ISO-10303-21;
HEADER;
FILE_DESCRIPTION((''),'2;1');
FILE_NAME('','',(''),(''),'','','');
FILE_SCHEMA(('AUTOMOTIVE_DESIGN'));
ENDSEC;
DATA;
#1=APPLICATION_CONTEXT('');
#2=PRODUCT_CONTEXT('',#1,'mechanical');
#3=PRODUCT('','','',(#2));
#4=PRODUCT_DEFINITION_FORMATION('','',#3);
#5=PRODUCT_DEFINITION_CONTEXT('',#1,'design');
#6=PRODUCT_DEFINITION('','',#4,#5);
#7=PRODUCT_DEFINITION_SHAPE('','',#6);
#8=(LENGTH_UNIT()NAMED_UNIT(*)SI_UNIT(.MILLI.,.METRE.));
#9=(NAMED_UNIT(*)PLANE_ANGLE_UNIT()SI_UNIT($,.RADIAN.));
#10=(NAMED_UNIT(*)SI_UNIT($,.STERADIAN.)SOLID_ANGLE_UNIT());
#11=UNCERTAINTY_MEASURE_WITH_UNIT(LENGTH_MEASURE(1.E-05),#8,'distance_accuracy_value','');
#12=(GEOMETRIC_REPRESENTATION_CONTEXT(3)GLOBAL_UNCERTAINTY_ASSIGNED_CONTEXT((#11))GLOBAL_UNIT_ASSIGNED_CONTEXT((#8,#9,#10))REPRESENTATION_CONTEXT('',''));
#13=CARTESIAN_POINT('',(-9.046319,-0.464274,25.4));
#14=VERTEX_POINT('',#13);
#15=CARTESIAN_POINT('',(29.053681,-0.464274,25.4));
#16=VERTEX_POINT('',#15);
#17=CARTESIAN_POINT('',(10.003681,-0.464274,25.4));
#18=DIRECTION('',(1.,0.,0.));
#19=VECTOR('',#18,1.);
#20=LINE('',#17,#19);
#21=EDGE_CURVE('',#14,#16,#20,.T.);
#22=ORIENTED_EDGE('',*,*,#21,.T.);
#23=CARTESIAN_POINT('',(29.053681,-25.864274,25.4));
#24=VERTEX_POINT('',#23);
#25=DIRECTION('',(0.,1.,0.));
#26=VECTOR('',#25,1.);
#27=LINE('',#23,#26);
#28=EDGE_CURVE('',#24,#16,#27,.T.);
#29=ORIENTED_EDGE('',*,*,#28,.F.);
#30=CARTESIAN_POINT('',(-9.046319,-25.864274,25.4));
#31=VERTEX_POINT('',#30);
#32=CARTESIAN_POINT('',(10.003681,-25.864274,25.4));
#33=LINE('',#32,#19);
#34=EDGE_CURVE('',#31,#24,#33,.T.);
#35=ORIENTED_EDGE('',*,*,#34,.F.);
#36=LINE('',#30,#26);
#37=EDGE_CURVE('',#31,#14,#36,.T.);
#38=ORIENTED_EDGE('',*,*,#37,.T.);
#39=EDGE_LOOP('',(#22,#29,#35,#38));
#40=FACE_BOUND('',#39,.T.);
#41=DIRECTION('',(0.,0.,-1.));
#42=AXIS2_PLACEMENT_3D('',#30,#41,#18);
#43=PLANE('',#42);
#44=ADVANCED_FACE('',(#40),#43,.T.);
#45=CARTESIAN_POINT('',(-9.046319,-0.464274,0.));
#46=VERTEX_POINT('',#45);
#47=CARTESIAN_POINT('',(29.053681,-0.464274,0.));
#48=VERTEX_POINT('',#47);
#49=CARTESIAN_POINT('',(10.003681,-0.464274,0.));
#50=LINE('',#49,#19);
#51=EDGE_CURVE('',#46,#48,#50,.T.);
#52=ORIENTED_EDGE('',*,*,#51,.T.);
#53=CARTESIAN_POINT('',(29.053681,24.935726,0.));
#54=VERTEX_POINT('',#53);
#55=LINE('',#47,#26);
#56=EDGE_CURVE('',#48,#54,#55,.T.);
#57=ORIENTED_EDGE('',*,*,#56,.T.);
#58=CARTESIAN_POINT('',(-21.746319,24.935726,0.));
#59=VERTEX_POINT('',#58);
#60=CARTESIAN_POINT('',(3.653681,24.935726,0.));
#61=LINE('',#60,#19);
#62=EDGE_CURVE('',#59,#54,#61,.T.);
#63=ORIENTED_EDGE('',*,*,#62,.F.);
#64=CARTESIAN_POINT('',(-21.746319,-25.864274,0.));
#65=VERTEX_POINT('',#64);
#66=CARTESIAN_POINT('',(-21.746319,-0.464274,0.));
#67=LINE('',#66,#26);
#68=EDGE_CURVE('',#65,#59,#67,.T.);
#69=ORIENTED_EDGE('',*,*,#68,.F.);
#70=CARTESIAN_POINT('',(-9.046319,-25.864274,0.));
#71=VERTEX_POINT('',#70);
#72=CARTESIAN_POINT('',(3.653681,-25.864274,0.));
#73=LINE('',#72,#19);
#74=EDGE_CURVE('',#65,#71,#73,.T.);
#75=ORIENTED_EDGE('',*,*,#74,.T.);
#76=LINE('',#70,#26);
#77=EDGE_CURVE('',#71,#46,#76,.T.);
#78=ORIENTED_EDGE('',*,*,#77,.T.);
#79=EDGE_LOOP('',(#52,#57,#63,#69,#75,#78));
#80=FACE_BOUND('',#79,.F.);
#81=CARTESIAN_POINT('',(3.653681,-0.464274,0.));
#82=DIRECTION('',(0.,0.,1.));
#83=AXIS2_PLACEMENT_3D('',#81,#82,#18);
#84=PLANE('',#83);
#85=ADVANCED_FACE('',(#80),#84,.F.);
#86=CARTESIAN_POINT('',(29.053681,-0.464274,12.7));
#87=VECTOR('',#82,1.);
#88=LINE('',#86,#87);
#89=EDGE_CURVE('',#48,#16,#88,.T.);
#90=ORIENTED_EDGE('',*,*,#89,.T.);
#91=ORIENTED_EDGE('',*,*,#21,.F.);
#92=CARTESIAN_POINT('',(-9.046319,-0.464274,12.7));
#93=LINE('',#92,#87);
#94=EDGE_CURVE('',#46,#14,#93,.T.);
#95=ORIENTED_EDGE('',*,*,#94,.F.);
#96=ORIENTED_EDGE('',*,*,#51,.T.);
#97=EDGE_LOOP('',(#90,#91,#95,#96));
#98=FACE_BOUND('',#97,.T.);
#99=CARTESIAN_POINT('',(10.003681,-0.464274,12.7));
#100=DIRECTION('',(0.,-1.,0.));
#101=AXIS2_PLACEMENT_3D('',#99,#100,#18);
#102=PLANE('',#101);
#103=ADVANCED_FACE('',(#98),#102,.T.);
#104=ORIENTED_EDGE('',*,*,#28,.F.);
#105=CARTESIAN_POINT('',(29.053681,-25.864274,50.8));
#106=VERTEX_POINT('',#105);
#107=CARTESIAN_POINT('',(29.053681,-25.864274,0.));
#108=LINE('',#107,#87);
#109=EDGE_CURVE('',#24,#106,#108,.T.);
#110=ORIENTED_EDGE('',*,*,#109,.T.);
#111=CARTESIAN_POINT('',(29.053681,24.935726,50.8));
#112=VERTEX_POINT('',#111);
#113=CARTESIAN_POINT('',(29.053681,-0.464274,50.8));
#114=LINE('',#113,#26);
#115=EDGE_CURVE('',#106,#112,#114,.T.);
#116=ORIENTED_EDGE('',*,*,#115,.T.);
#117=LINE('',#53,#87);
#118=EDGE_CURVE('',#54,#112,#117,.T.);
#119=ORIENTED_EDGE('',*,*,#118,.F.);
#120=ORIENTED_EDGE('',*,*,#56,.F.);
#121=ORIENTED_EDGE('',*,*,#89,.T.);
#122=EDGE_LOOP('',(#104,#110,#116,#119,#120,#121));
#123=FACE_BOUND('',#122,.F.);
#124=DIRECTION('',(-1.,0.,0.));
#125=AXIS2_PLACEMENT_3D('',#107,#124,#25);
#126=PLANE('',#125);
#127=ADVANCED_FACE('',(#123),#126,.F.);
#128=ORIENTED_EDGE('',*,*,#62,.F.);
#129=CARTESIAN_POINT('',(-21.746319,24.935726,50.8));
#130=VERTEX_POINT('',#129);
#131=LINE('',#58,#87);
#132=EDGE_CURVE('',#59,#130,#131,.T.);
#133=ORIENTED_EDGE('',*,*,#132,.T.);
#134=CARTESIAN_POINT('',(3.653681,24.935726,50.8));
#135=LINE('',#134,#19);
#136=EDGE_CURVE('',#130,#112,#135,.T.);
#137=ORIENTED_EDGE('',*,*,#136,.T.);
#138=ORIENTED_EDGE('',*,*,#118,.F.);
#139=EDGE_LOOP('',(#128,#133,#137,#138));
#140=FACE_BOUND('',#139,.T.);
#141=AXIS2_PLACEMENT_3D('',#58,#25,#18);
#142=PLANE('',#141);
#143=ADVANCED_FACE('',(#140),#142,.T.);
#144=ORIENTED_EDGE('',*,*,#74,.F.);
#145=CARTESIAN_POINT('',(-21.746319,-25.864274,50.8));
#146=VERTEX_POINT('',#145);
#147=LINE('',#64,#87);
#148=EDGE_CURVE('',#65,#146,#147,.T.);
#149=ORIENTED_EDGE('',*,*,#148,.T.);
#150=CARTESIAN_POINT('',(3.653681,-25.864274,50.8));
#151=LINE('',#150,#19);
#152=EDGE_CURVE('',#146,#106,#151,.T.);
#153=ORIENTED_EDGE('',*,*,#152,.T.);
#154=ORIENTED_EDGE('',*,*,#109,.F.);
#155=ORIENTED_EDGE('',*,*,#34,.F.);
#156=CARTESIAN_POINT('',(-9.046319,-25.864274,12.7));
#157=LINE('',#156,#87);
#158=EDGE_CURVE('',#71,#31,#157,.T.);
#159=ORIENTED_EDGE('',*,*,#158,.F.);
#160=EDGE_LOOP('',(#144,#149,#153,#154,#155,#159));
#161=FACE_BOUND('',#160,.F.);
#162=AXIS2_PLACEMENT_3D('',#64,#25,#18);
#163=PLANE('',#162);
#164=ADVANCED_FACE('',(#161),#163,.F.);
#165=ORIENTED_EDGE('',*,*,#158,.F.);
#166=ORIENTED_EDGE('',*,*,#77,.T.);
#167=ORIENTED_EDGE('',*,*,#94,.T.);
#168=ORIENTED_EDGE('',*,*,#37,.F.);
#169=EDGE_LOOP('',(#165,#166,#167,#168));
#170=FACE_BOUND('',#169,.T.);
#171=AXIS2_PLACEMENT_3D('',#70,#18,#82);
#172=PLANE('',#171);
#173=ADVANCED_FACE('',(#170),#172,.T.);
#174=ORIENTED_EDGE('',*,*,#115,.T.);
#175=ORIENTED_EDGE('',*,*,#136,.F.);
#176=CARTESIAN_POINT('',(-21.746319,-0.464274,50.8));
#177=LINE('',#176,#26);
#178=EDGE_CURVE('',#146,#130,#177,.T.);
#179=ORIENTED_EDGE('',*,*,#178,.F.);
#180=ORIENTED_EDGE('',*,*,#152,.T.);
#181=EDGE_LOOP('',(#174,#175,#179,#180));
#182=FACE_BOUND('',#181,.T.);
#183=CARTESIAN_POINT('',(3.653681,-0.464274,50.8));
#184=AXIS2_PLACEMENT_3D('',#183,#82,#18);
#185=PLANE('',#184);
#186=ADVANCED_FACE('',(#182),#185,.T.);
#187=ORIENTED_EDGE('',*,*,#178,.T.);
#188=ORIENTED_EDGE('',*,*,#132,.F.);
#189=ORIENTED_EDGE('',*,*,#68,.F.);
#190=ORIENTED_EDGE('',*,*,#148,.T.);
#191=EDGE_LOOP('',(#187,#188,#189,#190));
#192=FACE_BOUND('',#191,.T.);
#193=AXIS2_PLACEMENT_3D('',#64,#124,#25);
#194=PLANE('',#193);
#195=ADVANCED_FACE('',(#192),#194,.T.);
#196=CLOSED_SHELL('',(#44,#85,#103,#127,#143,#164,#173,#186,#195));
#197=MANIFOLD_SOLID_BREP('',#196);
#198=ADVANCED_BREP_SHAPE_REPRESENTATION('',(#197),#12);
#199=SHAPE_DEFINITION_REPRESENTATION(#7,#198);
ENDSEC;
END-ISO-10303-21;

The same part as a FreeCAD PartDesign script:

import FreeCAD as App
import Part
import Sketcher

V = App.Vector
Q = App.Units.Quantity


def add_polygon(sketch, points):
    """Adds a closed chain of lines whose ends are joined by coincident constraints."""
    first, n = sketch.GeometryCount, len(points)
    for a, b in zip(points, points[1:] + points[:1]):
        sketch.addGeometry(Part.LineSegment(App.Vector(*a, 0), App.Vector(*b, 0)), False)
    for i in range(n):
        sketch.addConstraint(Sketcher.Constraint("Coincident", first + i, 2, first + (i + 1) % n, 1))

doc = App.newDocument("Part")
body = doc.addObject("PartDesign::Body", "Body")

# Sketch on XY plane
sketch1 = body.newObject("Sketcher::SketchObject", "Sketch")
sketch1.AttachmentSupport = (doc.getObject("XY_Plane"), [""])
sketch1.MapMode = "FlatFace"
add_polygon(sketch1, [(-21.746319, 24.935726), (-21.746319, -25.864274), (29.053681, -25.864274), (29.053681, 24.935726)])  # lines 0-3
sketch1.addConstraint(Sketcher.Constraint("Vertical", 0))
sketch1.addConstraint(Sketcher.Constraint("Horizontal", 1))
sketch1.addConstraint(Sketcher.Constraint("Vertical", 2))
sketch1.addConstraint(Sketcher.Constraint("Horizontal", 3))
sketch1.addConstraint(Sketcher.Constraint("Equal", 3, 0))
sketch1.addConstraint(Sketcher.Constraint("DistanceX", 1, 1, 1, 2, Q("2 in")))
sketch1.addConstraint(Sketcher.Constraint("DistanceX", 0, 2, -1, 1, 21.746319))
sketch1.addConstraint(Sketcher.Constraint("DistanceY", 0, 2, -1, 1, 25.864274))
pad1 = body.newObject("PartDesign::Pad", "Pad")
pad1.Profile = sketch1
pad1.Length = Q("2 in")

# Sketch on XZ plane
sketch2 = body.newObject("Sketcher::SketchObject", "Sketch001")
sketch2.AttachmentSupport = (doc.getObject("XZ_Plane"), [""])
sketch2.MapMode = "FlatFace"
sketch2.AttachmentOffset = App.Placement(V(0, 0, 25.864274), App.Rotation())
add_polygon(sketch2, [(-9.046319, 25.4), (-9.046319, 0), (29.053681, 0), (29.053681, 25.4)])  # lines 0-3
sketch2.addConstraint(Sketcher.Constraint("Vertical", 0))
sketch2.addConstraint(Sketcher.Constraint("Horizontal", 1))
sketch2.addConstraint(Sketcher.Constraint("Vertical", 2))
sketch2.addConstraint(Sketcher.Constraint("Horizontal", 3))
sketch2.addConstraint(Sketcher.Constraint("PointOnObject", 0, 2, -1))
sketch2.addConstraint(Sketcher.Constraint("DistanceY", 0, 2, 0, 1, Q("1 in")))
sketch2.addConstraint(Sketcher.Constraint("DistanceX", 1, 1, 1, 2, Q("1.5 in")))
sketch2.addConstraint(Sketcher.Constraint("DistanceX", 0, 2, -1, 1, 9.046319))
pocket1 = body.newObject("PartDesign::Pocket", "Pocket")
pocket1.Profile = sketch2
pocket1.Length = Q("1 in")

doc.recompute()
